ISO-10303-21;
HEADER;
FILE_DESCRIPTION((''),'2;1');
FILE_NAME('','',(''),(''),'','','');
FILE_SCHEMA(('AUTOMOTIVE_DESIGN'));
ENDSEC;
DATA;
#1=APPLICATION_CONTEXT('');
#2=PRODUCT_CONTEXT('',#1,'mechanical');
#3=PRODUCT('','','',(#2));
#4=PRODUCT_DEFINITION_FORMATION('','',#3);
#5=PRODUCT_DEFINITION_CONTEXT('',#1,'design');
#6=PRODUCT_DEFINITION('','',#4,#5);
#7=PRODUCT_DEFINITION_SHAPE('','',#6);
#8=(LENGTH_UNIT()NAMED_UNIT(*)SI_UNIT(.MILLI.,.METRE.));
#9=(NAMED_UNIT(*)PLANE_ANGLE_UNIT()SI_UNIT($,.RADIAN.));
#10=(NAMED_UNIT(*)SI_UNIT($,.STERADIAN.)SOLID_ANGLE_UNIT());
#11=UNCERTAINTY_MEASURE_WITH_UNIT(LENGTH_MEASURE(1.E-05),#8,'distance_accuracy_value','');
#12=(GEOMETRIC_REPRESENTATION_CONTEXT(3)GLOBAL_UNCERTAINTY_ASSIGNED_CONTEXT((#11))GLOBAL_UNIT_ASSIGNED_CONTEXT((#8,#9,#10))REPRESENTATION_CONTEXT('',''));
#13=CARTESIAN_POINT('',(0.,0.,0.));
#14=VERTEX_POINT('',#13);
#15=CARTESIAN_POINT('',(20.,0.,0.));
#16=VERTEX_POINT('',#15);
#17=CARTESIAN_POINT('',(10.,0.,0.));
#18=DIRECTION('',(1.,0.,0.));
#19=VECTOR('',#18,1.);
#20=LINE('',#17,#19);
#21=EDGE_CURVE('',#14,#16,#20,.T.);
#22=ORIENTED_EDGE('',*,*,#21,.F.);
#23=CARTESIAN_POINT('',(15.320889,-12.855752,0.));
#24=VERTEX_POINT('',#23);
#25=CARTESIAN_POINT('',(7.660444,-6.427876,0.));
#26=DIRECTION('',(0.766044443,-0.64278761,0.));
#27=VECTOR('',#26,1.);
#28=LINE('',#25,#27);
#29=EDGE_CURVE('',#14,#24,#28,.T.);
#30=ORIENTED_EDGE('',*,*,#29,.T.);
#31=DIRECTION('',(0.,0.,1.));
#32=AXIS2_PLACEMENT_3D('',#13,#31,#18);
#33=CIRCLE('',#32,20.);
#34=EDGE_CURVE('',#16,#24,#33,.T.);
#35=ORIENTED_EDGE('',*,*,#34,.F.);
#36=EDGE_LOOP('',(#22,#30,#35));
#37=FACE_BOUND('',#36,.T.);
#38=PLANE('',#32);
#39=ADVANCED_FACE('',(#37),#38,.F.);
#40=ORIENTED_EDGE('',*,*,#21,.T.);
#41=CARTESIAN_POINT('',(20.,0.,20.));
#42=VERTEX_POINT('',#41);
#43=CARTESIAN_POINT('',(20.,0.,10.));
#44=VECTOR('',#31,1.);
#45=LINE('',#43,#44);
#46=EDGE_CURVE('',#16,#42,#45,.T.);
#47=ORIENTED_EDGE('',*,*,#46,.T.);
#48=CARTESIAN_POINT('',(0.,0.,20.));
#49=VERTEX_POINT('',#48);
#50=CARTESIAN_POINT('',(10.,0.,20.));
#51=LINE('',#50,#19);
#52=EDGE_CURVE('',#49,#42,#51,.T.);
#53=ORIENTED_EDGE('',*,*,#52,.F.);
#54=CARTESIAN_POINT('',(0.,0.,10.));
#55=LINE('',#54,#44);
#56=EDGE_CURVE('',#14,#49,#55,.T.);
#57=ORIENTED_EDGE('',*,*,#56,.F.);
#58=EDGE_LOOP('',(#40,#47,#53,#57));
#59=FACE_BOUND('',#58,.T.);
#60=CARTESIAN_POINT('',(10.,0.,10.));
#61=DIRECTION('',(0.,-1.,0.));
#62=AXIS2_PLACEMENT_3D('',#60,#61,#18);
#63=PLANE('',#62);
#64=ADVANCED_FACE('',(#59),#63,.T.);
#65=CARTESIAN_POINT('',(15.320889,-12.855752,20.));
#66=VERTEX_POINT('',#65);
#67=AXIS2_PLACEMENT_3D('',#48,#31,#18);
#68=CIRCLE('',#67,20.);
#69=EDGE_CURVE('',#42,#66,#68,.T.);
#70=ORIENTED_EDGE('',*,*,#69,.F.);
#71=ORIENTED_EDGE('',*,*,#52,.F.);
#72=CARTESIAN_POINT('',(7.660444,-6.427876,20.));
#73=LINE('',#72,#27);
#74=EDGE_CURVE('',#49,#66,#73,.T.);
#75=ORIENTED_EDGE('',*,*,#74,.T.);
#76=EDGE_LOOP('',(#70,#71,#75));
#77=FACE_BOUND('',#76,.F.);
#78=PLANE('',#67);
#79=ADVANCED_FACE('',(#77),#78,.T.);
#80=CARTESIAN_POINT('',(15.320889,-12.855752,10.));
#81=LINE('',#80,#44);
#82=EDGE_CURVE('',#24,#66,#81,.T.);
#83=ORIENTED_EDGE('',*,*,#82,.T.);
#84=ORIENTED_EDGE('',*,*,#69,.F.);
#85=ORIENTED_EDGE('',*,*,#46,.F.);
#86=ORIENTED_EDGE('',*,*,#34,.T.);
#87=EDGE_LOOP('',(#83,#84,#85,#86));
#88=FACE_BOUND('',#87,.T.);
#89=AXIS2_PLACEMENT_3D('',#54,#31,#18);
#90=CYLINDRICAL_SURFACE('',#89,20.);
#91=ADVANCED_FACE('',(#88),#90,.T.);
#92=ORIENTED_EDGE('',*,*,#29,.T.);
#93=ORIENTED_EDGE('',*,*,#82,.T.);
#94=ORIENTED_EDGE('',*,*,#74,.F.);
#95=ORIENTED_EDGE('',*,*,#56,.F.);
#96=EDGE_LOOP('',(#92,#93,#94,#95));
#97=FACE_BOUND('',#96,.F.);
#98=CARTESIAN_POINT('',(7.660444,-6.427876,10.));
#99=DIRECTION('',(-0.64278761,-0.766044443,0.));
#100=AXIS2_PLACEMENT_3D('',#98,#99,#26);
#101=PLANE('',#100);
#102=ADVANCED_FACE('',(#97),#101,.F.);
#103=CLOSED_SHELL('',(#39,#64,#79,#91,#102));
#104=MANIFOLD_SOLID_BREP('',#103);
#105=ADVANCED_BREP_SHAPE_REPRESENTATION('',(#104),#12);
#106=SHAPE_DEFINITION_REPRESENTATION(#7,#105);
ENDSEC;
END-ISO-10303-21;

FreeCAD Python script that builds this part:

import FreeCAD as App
import Part
import Sketcher

V = App.Vector
Q = App.Units.Quantity


def add_polygon(sketch, points):
    """Adds a closed chain of lines whose ends are joined by coincident constraints."""
    first, n = sketch.GeometryCount, len(points)
    for a, b in zip(points, points[1:] + points[:1]):
        sketch.addGeometry(Part.LineSegment(App.Vector(*a, 0), App.Vector(*b, 0)), False)
    for i in range(n):
        sketch.addConstraint(Sketcher.Constraint("Coincident", first + i, 2, first + (i + 1) % n, 1))

doc = App.newDocument("Part")
body = doc.addObject("PartDesign::Body", "Body")

# Sketch on XZ plane
sketch1 = doc.addObject("Sketcher::SketchObject", "Sketch")
body.addObject(sketch1)
sketch1.AttachmentSupport = (doc.XZ_Plane, [""])
sketch1.MapMode = "FlatFace"
add_polygon(sketch1, [(0, 20), (0, 0), (20, 0), (20, 20)])  # lines 0-3
sketch1.addConstraint([
    Sketcher.Constraint("Vertical", 0),
    Sketcher.Constraint("Horizontal", 1),
    Sketcher.Constraint("Vertical", 2),
    Sketcher.Constraint("Horizontal", 3),
    Sketcher.Constraint("Coincident", 0, 2, -1, 1),
    Sketcher.Constraint("Equal", 3, 0),
    Sketcher.Constraint("DistanceX", 1, 1, 1, 2, Q("20 mm")),
])
revolution = doc.addObject("PartDesign::Revolution", "Revolution")
body.addObject(revolution)
revolution.Profile = sketch1
revolution.ReferenceAxis = (sketch1, ["V_Axis"])
revolution.Angle = 320

doc.recompute()
